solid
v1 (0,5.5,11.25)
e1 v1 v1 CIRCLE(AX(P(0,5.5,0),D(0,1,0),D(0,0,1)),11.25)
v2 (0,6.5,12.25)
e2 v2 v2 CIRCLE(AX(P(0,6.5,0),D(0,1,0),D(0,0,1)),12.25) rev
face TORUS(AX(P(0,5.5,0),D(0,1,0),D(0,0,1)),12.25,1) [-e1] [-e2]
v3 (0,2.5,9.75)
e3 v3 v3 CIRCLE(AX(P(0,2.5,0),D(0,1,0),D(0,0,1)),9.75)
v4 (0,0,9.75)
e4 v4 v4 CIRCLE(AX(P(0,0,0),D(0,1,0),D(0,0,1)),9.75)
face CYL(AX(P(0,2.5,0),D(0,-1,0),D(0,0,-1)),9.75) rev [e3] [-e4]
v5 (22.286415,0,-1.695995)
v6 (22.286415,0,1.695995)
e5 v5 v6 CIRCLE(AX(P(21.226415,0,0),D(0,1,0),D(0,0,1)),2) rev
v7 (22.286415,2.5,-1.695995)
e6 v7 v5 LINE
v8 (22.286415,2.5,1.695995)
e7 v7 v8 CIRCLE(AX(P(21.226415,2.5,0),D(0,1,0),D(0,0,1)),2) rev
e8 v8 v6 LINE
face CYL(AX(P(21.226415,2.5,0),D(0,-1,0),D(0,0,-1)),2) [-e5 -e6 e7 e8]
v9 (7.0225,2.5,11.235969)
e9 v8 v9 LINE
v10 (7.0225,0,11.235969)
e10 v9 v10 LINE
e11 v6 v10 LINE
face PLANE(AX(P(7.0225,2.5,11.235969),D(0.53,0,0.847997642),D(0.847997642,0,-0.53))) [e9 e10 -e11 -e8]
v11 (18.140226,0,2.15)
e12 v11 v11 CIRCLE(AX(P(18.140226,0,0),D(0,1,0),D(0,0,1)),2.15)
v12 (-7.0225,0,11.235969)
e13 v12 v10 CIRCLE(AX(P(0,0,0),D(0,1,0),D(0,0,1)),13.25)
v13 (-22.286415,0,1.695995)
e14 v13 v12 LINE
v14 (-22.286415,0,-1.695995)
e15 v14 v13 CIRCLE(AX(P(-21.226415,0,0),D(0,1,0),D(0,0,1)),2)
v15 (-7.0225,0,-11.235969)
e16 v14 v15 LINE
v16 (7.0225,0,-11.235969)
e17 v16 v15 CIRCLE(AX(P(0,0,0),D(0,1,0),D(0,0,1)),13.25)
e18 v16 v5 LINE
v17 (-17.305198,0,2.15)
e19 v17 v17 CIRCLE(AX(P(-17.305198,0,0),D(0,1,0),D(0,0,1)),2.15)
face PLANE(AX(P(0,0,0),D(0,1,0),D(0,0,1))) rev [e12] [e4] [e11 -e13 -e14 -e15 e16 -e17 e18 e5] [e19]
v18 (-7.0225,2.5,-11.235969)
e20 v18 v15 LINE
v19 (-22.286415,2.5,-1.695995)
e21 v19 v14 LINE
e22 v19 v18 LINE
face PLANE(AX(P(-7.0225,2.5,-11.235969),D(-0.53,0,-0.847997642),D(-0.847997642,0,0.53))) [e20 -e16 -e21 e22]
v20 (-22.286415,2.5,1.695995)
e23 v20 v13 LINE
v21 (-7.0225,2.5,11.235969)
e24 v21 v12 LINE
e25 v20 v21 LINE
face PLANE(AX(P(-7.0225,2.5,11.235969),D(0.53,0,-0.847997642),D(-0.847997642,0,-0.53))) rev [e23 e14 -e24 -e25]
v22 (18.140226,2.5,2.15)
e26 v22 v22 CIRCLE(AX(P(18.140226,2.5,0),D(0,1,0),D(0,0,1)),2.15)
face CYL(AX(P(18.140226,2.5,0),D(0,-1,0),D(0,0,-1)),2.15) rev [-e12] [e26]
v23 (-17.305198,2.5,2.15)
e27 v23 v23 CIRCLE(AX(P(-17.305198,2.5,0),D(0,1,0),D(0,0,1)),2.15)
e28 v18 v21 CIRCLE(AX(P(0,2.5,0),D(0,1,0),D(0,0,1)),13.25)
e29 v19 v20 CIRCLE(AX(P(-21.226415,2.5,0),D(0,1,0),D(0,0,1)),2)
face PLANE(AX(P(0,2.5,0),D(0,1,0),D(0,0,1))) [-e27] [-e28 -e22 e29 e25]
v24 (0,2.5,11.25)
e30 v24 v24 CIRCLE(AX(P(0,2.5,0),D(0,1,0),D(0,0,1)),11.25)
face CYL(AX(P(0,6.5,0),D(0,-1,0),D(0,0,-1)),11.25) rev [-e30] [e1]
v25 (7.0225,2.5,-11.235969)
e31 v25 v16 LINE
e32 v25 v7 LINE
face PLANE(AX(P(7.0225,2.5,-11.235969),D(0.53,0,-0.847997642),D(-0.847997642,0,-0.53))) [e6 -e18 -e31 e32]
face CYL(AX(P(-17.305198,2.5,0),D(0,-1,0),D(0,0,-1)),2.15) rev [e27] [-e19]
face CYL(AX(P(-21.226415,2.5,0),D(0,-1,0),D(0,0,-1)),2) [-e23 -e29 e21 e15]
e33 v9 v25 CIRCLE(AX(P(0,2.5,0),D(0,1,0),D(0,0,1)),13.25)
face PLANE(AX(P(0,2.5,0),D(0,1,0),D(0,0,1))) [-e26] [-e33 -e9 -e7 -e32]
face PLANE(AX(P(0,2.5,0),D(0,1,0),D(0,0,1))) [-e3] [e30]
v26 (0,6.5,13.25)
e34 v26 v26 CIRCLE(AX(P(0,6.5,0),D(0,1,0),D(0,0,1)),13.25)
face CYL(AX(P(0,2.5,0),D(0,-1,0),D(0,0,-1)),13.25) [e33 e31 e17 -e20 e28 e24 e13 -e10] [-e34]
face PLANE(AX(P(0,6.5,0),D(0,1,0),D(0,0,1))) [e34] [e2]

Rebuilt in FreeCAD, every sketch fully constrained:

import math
import FreeCAD as App
import Part
import Sketcher
Q = App.Units.Quantity


def edges_at(feature, points):
    """Names of the edges that pass closest to the given points."""
    edges = feature.Shape.Edges
    near = lambda p: min(range(len(edges)), key=lambda i: edges[i].distToShape(Part.Vertex(*p))[0])
    return sorted({f"Edge{near(p) + 1}" for p in points})

doc = App.newDocument("Part")
body = doc.addObject("PartDesign::Body", "Body")

sketch1 = body.newObject("Sketcher::SketchObject", "Sketch")
sketch1.AttachmentSupport = (doc.getObject("XZ_Plane"), [""])
sketch1.MapMode = "FlatFace"
sketch1.addGeometry([
    Part.LineSegment(App.Vector(-7, -11.2, 0), App.Vector(-22.3, -1.7, 0)),
    Part.ArcOfCircle(Part.Circle(App.Vector(-21.2, 0, 0), App.Vector(0, 0, 1), 2), math.radians(122), math.radians(238)),
    Part.LineSegment(App.Vector(-22.3, 1.7, 0), App.Vector(-7, 11.2, 0)),
    Part.ArcOfCircle(Part.Circle(App.Vector(0, 0, 0), App.Vector(0, 0, 1), 13.2), math.radians(58), math.radians(122)),
    Part.LineSegment(App.Vector(7, 11.2, 0), App.Vector(22.3, 1.7, 0)),
    Part.ArcOfCircle(Part.Circle(App.Vector(21.2, 0, 0), App.Vector(0, 0, 1), 2), math.radians(-58), math.radians(58)),
    Part.LineSegment(App.Vector(22.3, -1.7, 0), App.Vector(7, -11.2, 0)),
    Part.ArcOfCircle(Part.Circle(App.Vector(0, 0, 0), App.Vector(0, 0, 1), 13.2), math.radians(-122), math.radians(-58)),
    Part.Circle(App.Vector(-17.3, 0, 0), App.Vector(0, 0, 1), 2.1),
    Part.Circle(App.Vector(0, 0, 0), App.Vector(0, 0, 1), 9.8),
    Part.Circle(App.Vector(18.1, 0, 0), App.Vector(0, 0, 1), 2.1),
], False)
sketch1.addConstraint([
    Sketcher.Constraint("Tangent", 0, 2, 1, 2),
    Sketcher.Constraint("Tangent", 1, 1, 2, 1),
    Sketcher.Constraint("Tangent", 2, 2, 3, 2),
    Sketcher.Constraint("Tangent", 3, 1, 4, 1),
    Sketcher.Constraint("Tangent", 4, 2, 5, 2),
    Sketcher.Constraint("Tangent", 5, 1, 6, 1),
    Sketcher.Constraint("Tangent", 6, 2, 7, 2),
    Sketcher.Constraint("Tangent", 7, 1, 0, 1),
    Sketcher.Constraint("Coincident", 3, 3, -1, 1),
    Sketcher.Constraint("Coincident", 7, 3, -1, 1),
    Sketcher.Constraint("Coincident", 9, 3, -1, 1),
    Sketcher.Constraint("Equal", 1, 5),
    Sketcher.Constraint("Equal", 3, 7),
    Sketcher.Constraint("Equal", 8, 10),
    Sketcher.Constraint("Symmetric", 1, 3, 5, 3, -1, 1),
    Sketcher.Constraint("PointOnObject", 1, 3, -1),
    Sketcher.Constraint("PointOnObject", 8, 3, -1),
    Sketcher.Constraint("PointOnObject", 10, 3, -1),
    Sketcher.Constraint("Radius", 1, Q("2 mm")),
    Sketcher.Constraint("Diameter", 8, Q("4.3 mm")),
    Sketcher.Constraint("Diameter", 9, Q("19.5 mm")),
    Sketcher.Constraint("Radius", 3, Q("13.25 mm")),
    Sketcher.Constraint("DistanceX", 0, 2, 1, 3, Q("1.06 mm")),
    Sketcher.Constraint("DistanceX", 8, 3, -1, 1, Q("17.305198 mm")),
    Sketcher.Constraint("DistanceX", 10, 3, 5, 3, Q("3.086189 mm")),
])
pad1 = body.newObject("PartDesign::Pad", "Pad")
pad1.Profile = sketch1
pad1.Length = 2.5
pad1.Reversed = True

sketch2 = body.newObject("Sketcher::SketchObject", "Sketch001")
sketch2.AttachmentSupport = (doc.getObject("XZ_Plane"), [""])
sketch2.MapMode = "FlatFace"
sketch2.AttachmentOffset = App.Placement(App.Vector(0, 0, -2.5), App.Rotation())
sketch2.addGeometry([
    Part.Circle(App.Vector(0, 0, 0), App.Vector(0, 0, 1), 13),
    Part.Circle(App.Vector(0, 0, 0), App.Vector(0, 0, 1), 11),
], False)
sketch2.addConstraint([
    Sketcher.Constraint("Coincident", 0, 3, -1, 1),
    Sketcher.Constraint("Coincident", 1, 3, -1, 1),
    Sketcher.Constraint("Diameter", 0, Q("26.5 mm")),
    Sketcher.Constraint("Diameter", 1, Q("22.5 mm")),
])
pad2 = body.newObject("PartDesign::Pad", "Pad001")
pad2.Profile = sketch2
pad2.Length = 4
pad2.Reversed = True
doc.recompute()

fillet = body.newObject("PartDesign::Fillet", "Fillet")
fillet.Base = (pad2, edges_at(pad2, [(-11.25, 6.5, 0)]))
fillet.Radius = 1

doc.recompute()
